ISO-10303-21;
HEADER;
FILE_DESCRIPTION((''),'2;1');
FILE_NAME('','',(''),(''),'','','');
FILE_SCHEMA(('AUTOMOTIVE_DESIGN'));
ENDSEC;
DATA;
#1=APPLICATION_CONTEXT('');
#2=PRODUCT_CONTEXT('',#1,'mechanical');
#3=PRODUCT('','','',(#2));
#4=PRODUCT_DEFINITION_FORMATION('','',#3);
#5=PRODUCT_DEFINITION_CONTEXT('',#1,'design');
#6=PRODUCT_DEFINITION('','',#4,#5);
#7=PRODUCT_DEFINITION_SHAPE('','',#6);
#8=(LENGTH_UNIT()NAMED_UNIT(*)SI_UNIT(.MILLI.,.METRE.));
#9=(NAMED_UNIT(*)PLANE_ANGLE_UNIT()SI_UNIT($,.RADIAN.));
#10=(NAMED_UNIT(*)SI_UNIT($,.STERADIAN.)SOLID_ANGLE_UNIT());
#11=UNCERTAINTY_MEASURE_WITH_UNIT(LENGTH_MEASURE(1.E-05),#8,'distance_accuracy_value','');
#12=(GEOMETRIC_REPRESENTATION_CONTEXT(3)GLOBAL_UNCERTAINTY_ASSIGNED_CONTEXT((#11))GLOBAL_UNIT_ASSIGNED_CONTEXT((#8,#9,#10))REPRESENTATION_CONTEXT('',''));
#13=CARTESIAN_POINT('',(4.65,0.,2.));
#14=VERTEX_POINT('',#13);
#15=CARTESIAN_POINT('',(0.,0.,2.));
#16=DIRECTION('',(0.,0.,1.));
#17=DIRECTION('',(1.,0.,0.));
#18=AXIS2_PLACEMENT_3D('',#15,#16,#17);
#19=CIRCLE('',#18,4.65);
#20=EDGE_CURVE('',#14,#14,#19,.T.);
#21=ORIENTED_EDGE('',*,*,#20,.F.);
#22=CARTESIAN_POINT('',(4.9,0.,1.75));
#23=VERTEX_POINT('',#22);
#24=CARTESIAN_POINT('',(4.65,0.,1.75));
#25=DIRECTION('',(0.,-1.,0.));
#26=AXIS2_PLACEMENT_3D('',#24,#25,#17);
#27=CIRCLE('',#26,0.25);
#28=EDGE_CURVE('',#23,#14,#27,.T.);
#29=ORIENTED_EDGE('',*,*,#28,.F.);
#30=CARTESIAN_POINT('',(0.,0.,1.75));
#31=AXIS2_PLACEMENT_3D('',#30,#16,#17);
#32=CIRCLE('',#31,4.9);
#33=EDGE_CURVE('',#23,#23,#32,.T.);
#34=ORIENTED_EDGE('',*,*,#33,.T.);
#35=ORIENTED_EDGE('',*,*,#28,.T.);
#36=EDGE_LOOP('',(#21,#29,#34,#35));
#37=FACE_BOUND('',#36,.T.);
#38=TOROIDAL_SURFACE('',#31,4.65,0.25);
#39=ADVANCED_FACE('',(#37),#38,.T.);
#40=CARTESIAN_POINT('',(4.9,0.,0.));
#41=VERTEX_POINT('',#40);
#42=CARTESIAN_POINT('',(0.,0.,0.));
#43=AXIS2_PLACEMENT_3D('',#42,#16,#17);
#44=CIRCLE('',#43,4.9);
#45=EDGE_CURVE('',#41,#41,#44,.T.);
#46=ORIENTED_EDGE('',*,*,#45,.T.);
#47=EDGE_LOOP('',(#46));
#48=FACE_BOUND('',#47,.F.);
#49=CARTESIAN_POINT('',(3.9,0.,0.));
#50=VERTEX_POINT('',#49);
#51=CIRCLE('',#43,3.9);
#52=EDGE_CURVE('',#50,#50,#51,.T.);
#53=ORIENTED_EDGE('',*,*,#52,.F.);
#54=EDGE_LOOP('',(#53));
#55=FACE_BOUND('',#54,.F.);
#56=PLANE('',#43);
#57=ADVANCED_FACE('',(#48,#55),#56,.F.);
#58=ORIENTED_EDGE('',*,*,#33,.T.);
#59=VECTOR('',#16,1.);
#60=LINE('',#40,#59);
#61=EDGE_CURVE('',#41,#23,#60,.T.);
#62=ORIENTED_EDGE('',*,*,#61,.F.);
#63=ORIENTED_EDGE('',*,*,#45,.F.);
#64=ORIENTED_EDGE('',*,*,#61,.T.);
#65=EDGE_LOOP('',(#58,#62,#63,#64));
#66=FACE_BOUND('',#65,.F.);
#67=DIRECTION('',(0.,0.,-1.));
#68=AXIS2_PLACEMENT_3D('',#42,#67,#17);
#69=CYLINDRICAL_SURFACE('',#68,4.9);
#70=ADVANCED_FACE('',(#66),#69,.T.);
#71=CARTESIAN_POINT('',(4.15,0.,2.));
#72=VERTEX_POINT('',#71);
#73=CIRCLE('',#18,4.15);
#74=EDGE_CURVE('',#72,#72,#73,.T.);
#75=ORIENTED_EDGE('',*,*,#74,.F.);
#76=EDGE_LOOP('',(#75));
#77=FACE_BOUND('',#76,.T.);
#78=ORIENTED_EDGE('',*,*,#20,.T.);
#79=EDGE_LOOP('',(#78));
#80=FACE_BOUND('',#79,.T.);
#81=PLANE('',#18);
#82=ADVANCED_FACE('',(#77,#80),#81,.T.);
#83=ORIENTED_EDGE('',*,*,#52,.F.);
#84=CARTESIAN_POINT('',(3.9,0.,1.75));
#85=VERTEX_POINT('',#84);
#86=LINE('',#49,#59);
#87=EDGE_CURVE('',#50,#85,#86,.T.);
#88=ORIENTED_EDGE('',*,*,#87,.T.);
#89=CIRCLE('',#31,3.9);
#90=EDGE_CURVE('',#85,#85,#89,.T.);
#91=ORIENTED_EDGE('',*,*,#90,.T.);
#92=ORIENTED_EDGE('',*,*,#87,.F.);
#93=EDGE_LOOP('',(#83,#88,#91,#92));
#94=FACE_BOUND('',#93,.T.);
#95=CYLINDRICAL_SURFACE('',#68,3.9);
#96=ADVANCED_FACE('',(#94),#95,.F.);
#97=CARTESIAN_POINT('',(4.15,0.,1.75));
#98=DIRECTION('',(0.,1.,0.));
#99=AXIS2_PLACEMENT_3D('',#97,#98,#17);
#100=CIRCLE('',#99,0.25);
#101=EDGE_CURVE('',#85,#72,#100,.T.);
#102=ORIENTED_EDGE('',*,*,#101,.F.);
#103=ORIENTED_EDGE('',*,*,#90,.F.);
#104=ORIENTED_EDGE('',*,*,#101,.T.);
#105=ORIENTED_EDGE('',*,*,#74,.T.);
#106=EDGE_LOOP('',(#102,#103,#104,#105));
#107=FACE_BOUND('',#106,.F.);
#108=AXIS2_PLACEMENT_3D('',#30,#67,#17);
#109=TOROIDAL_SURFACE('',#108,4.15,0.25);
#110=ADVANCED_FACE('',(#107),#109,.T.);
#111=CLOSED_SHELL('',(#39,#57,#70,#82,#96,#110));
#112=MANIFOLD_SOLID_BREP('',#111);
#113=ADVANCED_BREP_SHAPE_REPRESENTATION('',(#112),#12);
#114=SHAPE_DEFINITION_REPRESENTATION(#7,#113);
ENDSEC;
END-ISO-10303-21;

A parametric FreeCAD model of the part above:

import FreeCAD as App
import Part
import Sketcher
Q = App.Units.Quantity


def edges_at(feature, points):
    """Names of the edges that pass closest to the given points."""
    edges = feature.Shape.Edges
    near = lambda p: min(range(len(edges)), key=lambda i: edges[i].distToShape(Part.Vertex(*p))[0])
    return sorted({f"Edge{near(p) + 1}" for p in points})

doc = App.newDocument("Part")
body = doc.addObject("PartDesign::Body", "Body")

sketch1 = doc.addObject("Sketcher::SketchObject", "Sketch")
body.addObject(sketch1)
sketch1.AttachmentSupport = (doc.XY_Plane, [""])
sketch1.MapMode = "FlatFace"
sketch1.addGeometry([
    Part.Circle(App.Vector(0, 0, 0), App.Vector(0, 0, 1), 4.9),
    Part.Circle(App.Vector(0, 0, 0), App.Vector(0, 0, 1), 3.9),
], False)
sketch1.addConstraint([
    Sketcher.Constraint("Coincident", 0, 3, -1, 1),
    Sketcher.Constraint("Coincident", 1, 3, -1, 1),
    Sketcher.Constraint("Diameter", 1, Q("7.8 mm")),
    Sketcher.Constraint("Diameter", 0, Q("9.8 mm")),
])
pad1 = doc.addObject("PartDesign::Pad", "Pad")
body.addObject(pad1)
pad1.Profile = sketch1
pad1.Length = 2
doc.recompute()

fillet = doc.addObject("PartDesign::Fillet", "Fillet")
body.addObject(fillet)
fillet.Base = (pad1, edges_at(pad1, [(-3.9, 0, 2), (-4.9, 0, 2)]))
fillet.Radius = 0.25

doc.recompute()
